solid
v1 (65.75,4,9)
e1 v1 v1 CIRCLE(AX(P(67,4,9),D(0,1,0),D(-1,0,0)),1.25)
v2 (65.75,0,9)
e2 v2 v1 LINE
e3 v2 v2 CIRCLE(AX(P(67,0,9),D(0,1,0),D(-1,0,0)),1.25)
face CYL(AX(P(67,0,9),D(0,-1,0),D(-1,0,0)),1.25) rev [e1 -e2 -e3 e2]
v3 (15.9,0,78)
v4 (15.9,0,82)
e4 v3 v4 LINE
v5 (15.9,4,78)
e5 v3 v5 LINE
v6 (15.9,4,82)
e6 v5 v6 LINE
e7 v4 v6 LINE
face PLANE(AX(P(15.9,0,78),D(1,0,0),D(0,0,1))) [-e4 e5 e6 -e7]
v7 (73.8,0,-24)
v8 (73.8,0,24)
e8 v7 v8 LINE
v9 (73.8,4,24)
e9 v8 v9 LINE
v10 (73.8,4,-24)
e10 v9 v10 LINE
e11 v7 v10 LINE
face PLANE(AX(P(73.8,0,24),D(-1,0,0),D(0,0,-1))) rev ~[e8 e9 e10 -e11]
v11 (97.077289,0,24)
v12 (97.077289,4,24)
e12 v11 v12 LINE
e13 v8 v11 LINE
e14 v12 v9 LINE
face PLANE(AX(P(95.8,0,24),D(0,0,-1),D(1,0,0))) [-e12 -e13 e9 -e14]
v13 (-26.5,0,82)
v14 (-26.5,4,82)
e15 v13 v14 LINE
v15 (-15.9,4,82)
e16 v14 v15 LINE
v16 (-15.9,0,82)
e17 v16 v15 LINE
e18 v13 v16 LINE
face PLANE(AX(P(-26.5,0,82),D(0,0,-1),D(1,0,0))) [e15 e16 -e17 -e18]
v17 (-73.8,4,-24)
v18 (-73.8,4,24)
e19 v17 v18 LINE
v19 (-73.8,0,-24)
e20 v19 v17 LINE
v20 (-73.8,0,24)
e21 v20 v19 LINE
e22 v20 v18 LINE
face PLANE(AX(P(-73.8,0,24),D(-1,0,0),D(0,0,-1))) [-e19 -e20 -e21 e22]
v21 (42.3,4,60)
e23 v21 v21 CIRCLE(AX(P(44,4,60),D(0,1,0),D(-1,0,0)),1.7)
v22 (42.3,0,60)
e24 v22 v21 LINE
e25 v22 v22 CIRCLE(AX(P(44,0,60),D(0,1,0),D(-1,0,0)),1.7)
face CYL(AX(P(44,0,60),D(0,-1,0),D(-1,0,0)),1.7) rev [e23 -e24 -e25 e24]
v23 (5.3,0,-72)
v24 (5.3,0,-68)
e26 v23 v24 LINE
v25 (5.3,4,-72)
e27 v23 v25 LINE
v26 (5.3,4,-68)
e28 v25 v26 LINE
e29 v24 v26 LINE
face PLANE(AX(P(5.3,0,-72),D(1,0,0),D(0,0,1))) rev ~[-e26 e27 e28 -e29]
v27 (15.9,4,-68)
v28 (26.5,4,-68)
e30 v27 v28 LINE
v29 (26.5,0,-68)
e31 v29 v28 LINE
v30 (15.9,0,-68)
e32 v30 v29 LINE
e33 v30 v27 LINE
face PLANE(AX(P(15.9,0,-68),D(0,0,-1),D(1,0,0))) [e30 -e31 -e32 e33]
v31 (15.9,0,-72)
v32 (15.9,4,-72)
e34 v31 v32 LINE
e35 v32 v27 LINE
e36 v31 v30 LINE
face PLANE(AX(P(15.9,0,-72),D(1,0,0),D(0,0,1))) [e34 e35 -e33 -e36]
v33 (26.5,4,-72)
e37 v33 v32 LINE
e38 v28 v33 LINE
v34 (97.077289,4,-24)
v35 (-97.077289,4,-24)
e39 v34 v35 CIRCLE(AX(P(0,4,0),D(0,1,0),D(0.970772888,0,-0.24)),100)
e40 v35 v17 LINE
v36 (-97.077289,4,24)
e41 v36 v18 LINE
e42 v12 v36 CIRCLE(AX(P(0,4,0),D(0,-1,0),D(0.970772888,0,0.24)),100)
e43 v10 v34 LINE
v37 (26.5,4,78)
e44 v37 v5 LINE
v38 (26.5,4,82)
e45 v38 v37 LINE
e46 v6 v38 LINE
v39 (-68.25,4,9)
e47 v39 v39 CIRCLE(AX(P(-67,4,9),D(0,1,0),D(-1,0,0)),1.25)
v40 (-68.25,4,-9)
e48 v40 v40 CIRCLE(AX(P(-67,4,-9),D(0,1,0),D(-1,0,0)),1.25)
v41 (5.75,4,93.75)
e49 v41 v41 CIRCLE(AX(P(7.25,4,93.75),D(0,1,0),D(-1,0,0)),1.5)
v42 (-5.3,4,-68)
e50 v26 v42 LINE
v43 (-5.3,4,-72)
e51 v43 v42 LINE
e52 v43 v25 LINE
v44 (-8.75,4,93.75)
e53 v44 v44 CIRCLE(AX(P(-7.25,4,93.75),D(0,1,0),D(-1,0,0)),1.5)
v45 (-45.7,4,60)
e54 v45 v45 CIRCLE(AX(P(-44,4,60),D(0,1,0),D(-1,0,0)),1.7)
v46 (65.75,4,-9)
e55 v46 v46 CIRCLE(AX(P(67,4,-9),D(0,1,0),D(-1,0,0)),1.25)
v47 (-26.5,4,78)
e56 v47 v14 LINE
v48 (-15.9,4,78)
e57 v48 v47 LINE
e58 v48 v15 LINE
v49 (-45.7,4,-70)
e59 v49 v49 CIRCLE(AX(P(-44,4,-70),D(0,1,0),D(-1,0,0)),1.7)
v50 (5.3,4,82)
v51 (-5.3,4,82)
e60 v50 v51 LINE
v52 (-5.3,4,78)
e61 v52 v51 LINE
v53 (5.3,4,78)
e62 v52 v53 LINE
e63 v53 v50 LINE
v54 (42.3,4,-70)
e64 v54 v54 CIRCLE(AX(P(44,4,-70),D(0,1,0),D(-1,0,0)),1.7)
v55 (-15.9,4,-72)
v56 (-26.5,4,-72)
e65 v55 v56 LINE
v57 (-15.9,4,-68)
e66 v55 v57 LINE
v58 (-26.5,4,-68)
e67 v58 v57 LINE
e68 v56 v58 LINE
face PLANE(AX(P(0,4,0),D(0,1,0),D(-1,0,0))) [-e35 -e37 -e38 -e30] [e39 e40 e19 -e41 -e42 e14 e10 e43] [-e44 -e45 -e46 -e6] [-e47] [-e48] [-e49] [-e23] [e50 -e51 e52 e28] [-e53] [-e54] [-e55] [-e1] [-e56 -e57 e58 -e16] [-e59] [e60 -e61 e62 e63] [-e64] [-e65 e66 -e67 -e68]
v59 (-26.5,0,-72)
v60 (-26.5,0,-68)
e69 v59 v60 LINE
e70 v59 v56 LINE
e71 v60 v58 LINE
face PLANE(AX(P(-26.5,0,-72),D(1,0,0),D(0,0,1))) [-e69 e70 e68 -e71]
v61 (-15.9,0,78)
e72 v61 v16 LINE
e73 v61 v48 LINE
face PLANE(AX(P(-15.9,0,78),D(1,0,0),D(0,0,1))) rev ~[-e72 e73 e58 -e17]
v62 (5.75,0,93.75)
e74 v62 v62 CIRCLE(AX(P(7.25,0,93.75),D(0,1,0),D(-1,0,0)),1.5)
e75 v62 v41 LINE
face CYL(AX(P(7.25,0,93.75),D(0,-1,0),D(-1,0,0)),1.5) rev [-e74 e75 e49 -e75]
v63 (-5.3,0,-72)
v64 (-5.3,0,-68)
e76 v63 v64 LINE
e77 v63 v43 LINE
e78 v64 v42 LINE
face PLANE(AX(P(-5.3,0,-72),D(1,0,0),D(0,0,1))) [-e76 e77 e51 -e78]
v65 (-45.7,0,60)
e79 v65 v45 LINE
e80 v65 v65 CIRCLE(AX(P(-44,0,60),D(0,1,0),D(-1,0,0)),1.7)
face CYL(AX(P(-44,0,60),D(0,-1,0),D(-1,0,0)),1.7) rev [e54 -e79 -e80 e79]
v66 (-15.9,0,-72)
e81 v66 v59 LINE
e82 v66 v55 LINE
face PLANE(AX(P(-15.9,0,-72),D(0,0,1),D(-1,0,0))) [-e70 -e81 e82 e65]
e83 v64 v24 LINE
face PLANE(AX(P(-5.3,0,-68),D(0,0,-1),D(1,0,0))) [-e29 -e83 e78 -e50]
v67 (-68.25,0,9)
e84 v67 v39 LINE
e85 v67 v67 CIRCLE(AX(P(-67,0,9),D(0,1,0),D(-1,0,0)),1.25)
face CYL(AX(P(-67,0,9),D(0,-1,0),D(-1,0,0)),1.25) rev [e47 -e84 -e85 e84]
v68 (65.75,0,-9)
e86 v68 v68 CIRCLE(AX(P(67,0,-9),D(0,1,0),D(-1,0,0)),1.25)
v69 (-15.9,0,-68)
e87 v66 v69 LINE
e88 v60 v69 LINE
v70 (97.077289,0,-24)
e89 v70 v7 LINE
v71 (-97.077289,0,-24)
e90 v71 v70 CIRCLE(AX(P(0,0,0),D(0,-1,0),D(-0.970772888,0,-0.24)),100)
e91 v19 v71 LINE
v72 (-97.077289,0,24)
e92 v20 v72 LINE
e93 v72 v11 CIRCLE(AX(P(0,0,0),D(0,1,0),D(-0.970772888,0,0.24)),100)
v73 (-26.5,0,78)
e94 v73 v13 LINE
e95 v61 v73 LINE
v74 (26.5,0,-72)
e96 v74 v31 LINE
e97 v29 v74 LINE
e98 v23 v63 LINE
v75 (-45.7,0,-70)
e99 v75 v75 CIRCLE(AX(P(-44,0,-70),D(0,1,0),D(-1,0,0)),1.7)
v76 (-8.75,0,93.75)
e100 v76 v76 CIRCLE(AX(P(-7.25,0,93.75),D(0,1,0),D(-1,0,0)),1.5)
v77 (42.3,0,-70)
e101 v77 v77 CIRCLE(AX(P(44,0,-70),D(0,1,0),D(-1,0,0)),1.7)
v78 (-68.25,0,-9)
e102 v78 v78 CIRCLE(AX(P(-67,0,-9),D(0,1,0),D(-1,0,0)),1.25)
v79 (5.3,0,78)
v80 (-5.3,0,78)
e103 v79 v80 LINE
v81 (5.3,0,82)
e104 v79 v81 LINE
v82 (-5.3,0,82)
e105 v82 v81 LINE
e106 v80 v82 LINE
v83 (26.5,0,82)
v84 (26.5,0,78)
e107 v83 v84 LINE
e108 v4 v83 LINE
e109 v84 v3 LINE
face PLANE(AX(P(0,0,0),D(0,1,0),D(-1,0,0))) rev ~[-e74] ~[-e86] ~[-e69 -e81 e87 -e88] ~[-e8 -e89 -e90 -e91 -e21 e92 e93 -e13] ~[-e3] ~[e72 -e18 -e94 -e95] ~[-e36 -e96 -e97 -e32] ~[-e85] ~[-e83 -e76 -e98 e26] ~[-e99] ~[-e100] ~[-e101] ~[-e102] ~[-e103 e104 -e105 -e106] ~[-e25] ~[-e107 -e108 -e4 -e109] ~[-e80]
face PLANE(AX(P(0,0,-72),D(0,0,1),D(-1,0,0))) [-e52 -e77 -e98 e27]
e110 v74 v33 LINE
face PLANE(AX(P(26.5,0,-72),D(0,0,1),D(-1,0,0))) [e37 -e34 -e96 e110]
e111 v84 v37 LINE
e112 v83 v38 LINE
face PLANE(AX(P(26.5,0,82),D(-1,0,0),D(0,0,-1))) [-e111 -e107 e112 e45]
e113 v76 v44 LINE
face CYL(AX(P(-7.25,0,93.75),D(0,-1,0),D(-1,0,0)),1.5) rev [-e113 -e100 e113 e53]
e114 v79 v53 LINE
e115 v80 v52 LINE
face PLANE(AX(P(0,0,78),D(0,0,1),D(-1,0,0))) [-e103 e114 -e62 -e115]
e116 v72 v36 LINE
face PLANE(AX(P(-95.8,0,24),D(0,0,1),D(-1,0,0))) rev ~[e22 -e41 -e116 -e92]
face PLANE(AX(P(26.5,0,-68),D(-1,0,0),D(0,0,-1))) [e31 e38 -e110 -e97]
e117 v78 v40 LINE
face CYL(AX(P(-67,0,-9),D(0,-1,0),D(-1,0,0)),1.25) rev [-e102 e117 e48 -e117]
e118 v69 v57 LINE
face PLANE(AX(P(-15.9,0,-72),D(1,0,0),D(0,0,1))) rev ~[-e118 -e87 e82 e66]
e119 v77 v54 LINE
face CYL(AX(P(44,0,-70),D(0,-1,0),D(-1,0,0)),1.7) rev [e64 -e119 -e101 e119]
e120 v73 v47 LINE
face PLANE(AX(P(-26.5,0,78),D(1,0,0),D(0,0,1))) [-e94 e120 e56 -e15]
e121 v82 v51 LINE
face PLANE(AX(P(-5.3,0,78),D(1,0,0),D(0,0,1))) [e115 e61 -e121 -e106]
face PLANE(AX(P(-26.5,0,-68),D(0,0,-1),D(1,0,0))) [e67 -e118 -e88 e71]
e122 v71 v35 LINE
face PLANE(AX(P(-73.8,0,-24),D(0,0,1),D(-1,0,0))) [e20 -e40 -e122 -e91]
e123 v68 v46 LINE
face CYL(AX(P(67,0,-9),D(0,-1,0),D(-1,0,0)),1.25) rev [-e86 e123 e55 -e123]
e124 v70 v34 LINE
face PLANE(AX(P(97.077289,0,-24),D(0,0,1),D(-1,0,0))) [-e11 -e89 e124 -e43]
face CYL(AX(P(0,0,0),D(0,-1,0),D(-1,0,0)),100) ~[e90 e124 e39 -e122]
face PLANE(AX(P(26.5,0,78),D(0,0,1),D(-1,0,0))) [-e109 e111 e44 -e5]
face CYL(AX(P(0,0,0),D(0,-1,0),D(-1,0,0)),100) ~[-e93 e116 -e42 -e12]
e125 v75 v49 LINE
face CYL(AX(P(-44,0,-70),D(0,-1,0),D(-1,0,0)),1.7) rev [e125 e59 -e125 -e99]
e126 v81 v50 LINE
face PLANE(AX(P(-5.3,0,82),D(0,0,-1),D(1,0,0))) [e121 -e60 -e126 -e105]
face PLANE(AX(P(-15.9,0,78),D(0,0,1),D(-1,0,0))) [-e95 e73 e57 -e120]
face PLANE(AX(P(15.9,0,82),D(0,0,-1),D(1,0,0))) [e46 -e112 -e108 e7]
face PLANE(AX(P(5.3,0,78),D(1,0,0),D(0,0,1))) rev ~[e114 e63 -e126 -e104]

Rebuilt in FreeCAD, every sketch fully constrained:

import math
import FreeCAD as App
import Part
import Sketcher

V = App.Vector
Q = App.Units.Quantity

doc = App.newDocument("Part")
params = doc.addObject("Spreadsheet::Sheet", "Params")
for row, (alias, value) in enumerate([
    ("sketch1_diameter", "3 mm"),
    ("sketch1_radius", "100 mm"),
    ("sketch1_diameter2", "2.5 mm"),
    ("sketch1_diameter3", "3.4 mm"),
    ("sketch1_height", "48 mm"),
    ("pad1_length", "4 mm"),
], start=1):
    params.set(f"A{row}", alias)
    params.set(f"B{row}", "=" + value)
    params.setAlias(f"B{row}", alias)

body = doc.addObject("PartDesign::Body", "Body")

sketch1 = doc.addObject("Sketcher::SketchObject", "Sketch")
body.addObject(sketch1)
sketch1.AttachmentSupport = (doc.XZ_Plane, [""])
sketch1.MapMode = "FlatFace"
sketch1.addGeometry(Part.ArcOfCircle(Part.Circle(V(0, 0, 0), V(0, 0, 1), 100), math.radians(14), math.radians(166)), False)
sketch1.addGeometry(Part.LineSegment(V(97.1, 24, 0), V(73.8, 24, 0)), False)
sketch1.addGeometry(Part.LineSegment(V(73.8, 24, 0), V(73.8, -24, 0)), False)
sketch1.addGeometry(Part.LineSegment(V(73.8, -24, 0), V(97.1, -24, 0)), False)
sketch1.addGeometry(Part.ArcOfCircle(Part.Circle(V(0, 0, 0), V(0, 0, 1), 100), math.radians(-166), math.radians(-14)), False)
sketch1.addGeometry(Part.LineSegment(V(-97.1, -24, 0), V(-73.8, -24, 0)), False)
sketch1.addGeometry(Part.LineSegment(V(-73.8, -24, 0), V(-73.8, 24, 0)), False)
sketch1.addGeometry(Part.LineSegment(V(-73.8, 24, 0), V(-97.1, 24, 0)), False)
sketch1.addGeometry(Part.LineSegment(V(-5.3, 78, 0), V(5.3, 78, 0)), False)
sketch1.addGeometry(Part.LineSegment(V(5.3, 78, 0), V(5.3, 82, 0)), False)
sketch1.addGeometry(Part.LineSegment(V(5.3, 82, 0), V(-5.3, 82, 0)), False)
sketch1.addGeometry(Part.LineSegment(V(-5.3, 82, 0), V(-5.3, 78, 0)), False)
sketch1.addGeometry(Part.LineSegment(V(-26.5, 78, 0), V(-15.9, 78, 0)), False)
sketch1.addGeometry(Part.LineSegment(V(-15.9, 78, 0), V(-15.9, 82, 0)), False)
sketch1.addGeometry(Part.LineSegment(V(-15.9, 82, 0), V(-26.5, 82, 0)), False)
sketch1.addGeometry(Part.LineSegment(V(-26.5, 82, 0), V(-26.5, 78, 0)), False)
sketch1.addGeometry(Part.Circle(V(-67, 9, 0), V(0, 0, 1), 1.2), False)
sketch1.addGeometry(Part.Circle(V(-44, 60, 0), V(0, 0, 1), 1.7), False)
sketch1.addGeometry(Part.Circle(V(-7.2, 93.8, 0), V(0, 0, 1), 1.5), False)
sketch1.addGeometry(Part.LineSegment(V(-5.3, -72, 0), V(5.3, -72, 0)), False)
sketch1.addGeometry(Part.LineSegment(V(5.3, -72, 0), V(5.3, -68, 0)), False)
sketch1.addGeometry(Part.LineSegment(V(5.3, -68, 0), V(-5.3, -68, 0)), False)
sketch1.addGeometry(Part.LineSegment(V(-5.3, -68, 0), V(-5.3, -72, 0)), False)
sketch1.addGeometry(Part.LineSegment(V(-26.5, -72, 0), V(-15.9, -72, 0)), False)
sketch1.addGeometry(Part.LineSegment(V(-15.9, -72, 0), V(-15.9, -68, 0)), False)
sketch1.addGeometry(Part.LineSegment(V(-15.9, -68, 0), V(-26.5, -68, 0)), False)
sketch1.addGeometry(Part.LineSegment(V(-26.5, -68, 0), V(-26.5, -72, 0)), False)
sketch1.addGeometry(Part.Circle(V(-67, -9, 0), V(0, 0, 1), 1.2), False)
sketch1.addGeometry(Part.Circle(V(-44, -70, 0), V(0, 0, 1), 1.7), False)
sketch1.addGeometry(Part.Circle(V(44, 60, 0), V(0, 0, 1), 1.7), False)
sketch1.addGeometry(Part.LineSegment(V(26.5, 82, 0), V(15.9, 82, 0)), False)
sketch1.addGeometry(Part.LineSegment(V(15.9, 82, 0), V(15.9, 78, 0)), False)
sketch1.addGeometry(Part.LineSegment(V(15.9, 78, 0), V(26.5, 78, 0)), False)
sketch1.addGeometry(Part.LineSegment(V(26.5, 78, 0), V(26.5, 82, 0)), False)
sketch1.addGeometry(Part.Circle(V(7.2, 93.8, 0), V(0, 0, 1), 1.5), False)
sketch1.addGeometry(Part.Circle(V(67, 9, 0), V(0, 0, 1), 1.2), False)
sketch1.addGeometry(Part.Circle(V(67, -9, 0), V(0, 0, 1), 1.2), False)
sketch1.addGeometry(Part.Circle(V(44, -70, 0), V(0, 0, 1), 1.7), False)
sketch1.addGeometry(Part.LineSegment(V(26.5, -68, 0), V(15.9, -68, 0)), False)
sketch1.addGeometry(Part.LineSegment(V(15.9, -68, 0), V(15.9, -72, 0)), False)
sketch1.addGeometry(Part.LineSegment(V(15.9, -72, 0), V(26.5, -72, 0)), False)
sketch1.addGeometry(Part.LineSegment(V(26.5, -72, 0), V(26.5, -68, 0)), False)
sketch1.addConstraint(Sketcher.Constraint("Coincident", 0, 1, 1, 1))
sketch1.addConstraint(Sketcher.Constraint("Coincident", 1, 2, 2, 1))
sketch1.addConstraint(Sketcher.Constraint("Coincident", 2, 2, 3, 1))
sketch1.addConstraint(Sketcher.Constraint("Coincident", 3, 2, 4, 2))
sketch1.addConstraint(Sketcher.Constraint("Coincident", 4, 1, 5, 1))
sketch1.addConstraint(Sketcher.Constraint("Coincident", 5, 2, 6, 1))
sketch1.addConstraint(Sketcher.Constraint("Coincident", 6, 2, 7, 1))
sketch1.addConstraint(Sketcher.Constraint("Coincident", 7, 2, 0, 2))
sketch1.addConstraint(Sketcher.Constraint("Coincident", 8, 2, 9, 1))
sketch1.addConstraint(Sketcher.Constraint("Coincident", 9, 2, 10, 1))
sketch1.addConstraint(Sketcher.Constraint("Coincident", 10, 2, 11, 1))
sketch1.addConstraint(Sketcher.Constraint("Coincident", 11, 2, 8, 1))
sketch1.addConstraint(Sketcher.Constraint("Coincident", 12, 2, 13, 1))
sketch1.addConstraint(Sketcher.Constraint("Coincident", 13, 2, 14, 1))
sketch1.addConstraint(Sketcher.Constraint("Coincident", 14, 2, 15, 1))
sketch1.addConstraint(Sketcher.Constraint("Coincident", 15, 2, 12, 1))
sketch1.addConstraint(Sketcher.Constraint("Coincident", 19, 2, 20, 1))
sketch1.addConstraint(Sketcher.Constraint("Coincident", 20, 2, 21, 1))
sketch1.addConstraint(Sketcher.Constraint("Coincident", 21, 2, 22, 1))
sketch1.addConstraint(Sketcher.Constraint("Coincident", 22, 2, 19, 1))
sketch1.addConstraint(Sketcher.Constraint("Coincident", 23, 2, 24, 1))
sketch1.addConstraint(Sketcher.Constraint("Coincident", 24, 2, 25, 1))
sketch1.addConstraint(Sketcher.Constraint("Coincident", 25, 2, 26, 1))
sketch1.addConstraint(Sketcher.Constraint("Coincident", 26, 2, 23, 1))
sketch1.addConstraint(Sketcher.Constraint("Coincident", 30, 2, 31, 1))
sketch1.addConstraint(Sketcher.Constraint("Coincident", 31, 2, 32, 1))
sketch1.addConstraint(Sketcher.Constraint("Coincident", 32, 2, 33, 1))
sketch1.addConstraint(Sketcher.Constraint("Coincident", 33, 2, 30, 1))
sketch1.addConstraint(Sketcher.Constraint("Coincident", 38, 2, 39, 1))
sketch1.addConstraint(Sketcher.Constraint("Coincident", 39, 2, 40, 1))
sketch1.addConstraint(Sketcher.Constraint("Coincident", 40, 2, 41, 1))
sketch1.addConstraint(Sketcher.Constraint("Coincident", 41, 2, 38, 1))
sketch1.addConstraint(Sketcher.Constraint("Horizontal", 1))
sketch1.addConstraint(Sketcher.Constraint("Vertical", 2))
sketch1.addConstraint(Sketcher.Constraint("Horizontal", 3))
sketch1.addConstraint(Sketcher.Constraint("Horizontal", 5))
sketch1.addConstraint(Sketcher.Constraint("Vertical", 6))
sketch1.addConstraint(Sketcher.Constraint("Horizontal", 7))
sketch1.addConstraint(Sketcher.Constraint("Horizontal", 8))
sketch1.addConstraint(Sketcher.Constraint("Vertical", 9))
sketch1.addConstraint(Sketcher.Constraint("Horizontal", 10))
sketch1.addConstraint(Sketcher.Constraint("Vertical", 11))
sketch1.addConstraint(Sketcher.Constraint("Horizontal", 12))
sketch1.addConstraint(Sketcher.Constraint("Vertical", 13))
sketch1.addConstraint(Sketcher.Constraint("Horizontal", 14))
sketch1.addConstraint(Sketcher.Constraint("Vertical", 15))
sketch1.addConstraint(Sketcher.Constraint("Horizontal", 19))
sketch1.addConstraint(Sketcher.Constraint("Vertical", 20))
sketch1.addConstraint(Sketcher.Constraint("Horizontal", 21))
sketch1.addConstraint(Sketcher.Constraint("Vertical", 22))
sketch1.addConstraint(Sketcher.Constraint("Horizontal", 23))
sketch1.addConstraint(Sketcher.Constraint("Vertical", 24))
sketch1.addConstraint(Sketcher.Constraint("Horizontal", 25))
sketch1.addConstraint(Sketcher.Constraint("Vertical", 26))
sketch1.addConstraint(Sketcher.Constraint("Horizontal", 30))
sketch1.addConstraint(Sketcher.Constraint("Vertical", 31))
sketch1.addConstraint(Sketcher.Constraint("Horizontal", 32))
sketch1.addConstraint(Sketcher.Constraint("Vertical", 33))
sketch1.addConstraint(Sketcher.Constraint("Horizontal", 38))
sketch1.addConstraint(Sketcher.Constraint("Vertical", 39))
sketch1.addConstraint(Sketcher.Constraint("Horizontal", 40))
sketch1.addConstraint(Sketcher.Constraint("Vertical", 41))
sketch1.addConstraint(Sketcher.Constraint("Coincident", 0, 3, -1, 1))
sketch1.addConstraint(Sketcher.Constraint("Coincident", 4, 3, -1, 1))
sketch1.addConstraint(Sketcher.Constraint("Equal", 0, 4))
sketch1.addConstraint(Sketcher.Constraint("Equal", 16, 27))
sketch1.addConstraint(Sketcher.Constraint("Equal", 17, 28))
sketch1.addConstraint(Sketcher.Constraint("Equal", 28, 29))
sketch1.addConstraint(Sketcher.Constraint("Equal", 18, 34))
sketch1.addConstraint(Sketcher.Constraint("Equal", 27, 35))
sketch1.addConstraint(Sketcher.Constraint("Equal", 35, 36))
sketch1.addConstraint(Sketcher.Constraint("Equal", 29, 37))
sketch1.addConstraint(Sketcher.Constraint("Symmetric", 27, 3, 35, 3, -1, 1))
sketch1.addConstraint(Sketcher.Constraint("Symmetric", 16, 3, 36, 3, -1, 1))
sketch1.addConstraint(Sketcher.Constraint("Symmetric", 1, 2, 5, 2, -1, 1))
sketch1.addConstraint(Sketcher.Constraint("Symmetric", 17, 3, 29, 3, -2))
sketch1.addConstraint(Sketcher.Constraint("Symmetric", 18, 3, 34, 3, -2))
sketch1.addConstraint(Sketcher.Constraint("Symmetric", 16, 3, 35, 3, -2))
sketch1.addConstraint(Sketcher.Constraint("Symmetric", 28, 3, 37, 3, -2))
sketch1.addConstraint(Sketcher.Constraint("Symmetric", 13, 2, 30, 2, -2))
sketch1.addConstraint(Sketcher.Constraint("Symmetric", 15, 2, 32, 2, -2))
sketch1.addConstraint(Sketcher.Constraint("Symmetric", 24, 2, 38, 2, -2))
sketch1.addConstraint(Sketcher.Constraint("Symmetric", 26, 2, 40, 2, -2))
sketch1.addConstraint(Sketcher.Constraint("Horizontal", 3, 2, 4, 1))
sketch1.addConstraint(Sketcher.Constraint("Horizontal", 1, 2, 6, 2))
sketch1.addConstraint(Sketcher.Constraint("Horizontal", 11, 2, 12, 2))
sketch1.addConstraint(Sketcher.Constraint("Horizontal", 10, 2, 13, 2))
sketch1.addConstraint(Sketcher.Constraint("Horizontal", 22, 2, 23, 2))
sketch1.addConstraint(Sketcher.Constraint("Horizontal", 21, 2, 24, 2))
sketch1.addConstraint(Sketcher.Constraint("Vertical", 17, 3, 28, 3))
sketch1.addConstraint(Sketcher.Constraint("Vertical", 9, 2, 19, 2))
sketch1.addConstraint(Sketcher.Constraint("Vertical", 11, 2, 21, 2))
sketch1.addConstraint(Sketcher.Constraint("Vertical", 13, 2, 23, 2))
sketch1.addConstraint(Sketcher.Constraint("Vertical", 15, 2, 25, 2))
sketch1.addConstraint(Sketcher.Constraint("Equal", 10, 12))
sketch1.addConstraint(Sketcher.Constraint("Equal", 15, 20))
sketch1.addConstraint(Sketcher.Constraint("Diameter", 18, Q("3 mm")))
sketch1.addConstraint(Sketcher.Constraint("Radius", 0, Q("100 mm")))
sketch1.addConstraint(Sketcher.Constraint("Diameter", 16, Q("2.5 mm")))
sketch1.addConstraint(Sketcher.Constraint("Diameter", 17, Q("3.4 mm")))
sketch1.addConstraint(Sketcher.Constraint("DistanceY", 2, 2, 2, 1, Q("48 mm")))
sketch1.addConstraint(Sketcher.Constraint("DistanceY", 9, 1, 9, 2, Q("4 mm")))
sketch1.addConstraint(Sketcher.Constraint("DistanceX", 8, 1, 8, 2, Q("10.6 mm")))
sketch1.addConstraint(Sketcher.Constraint("DistanceX", 16, 3, -1, 1, Q("67 mm")))
sketch1.addConstraint(Sketcher.Constraint("DistanceY", -1, 1, 16, 3, Q("9 mm")))
sketch1.addConstraint(Sketcher.Constraint("DistanceX", 17, 3, -1, 1, Q("44 mm")))
sketch1.addConstraint(Sketcher.Constraint("DistanceY", -1, 1, 17, 3, Q("60 mm")))
sketch1.addConstraint(Sketcher.Constraint("DistanceY", -1, 1, 8, 2, Q("78 mm")))
sketch1.addConstraint(Sketcher.Constraint("DistanceY", 28, 3, 17, 3, Q("130 mm")))
sketch1.addConstraint(Sketcher.Constraint("DistanceY", 19, 2, 2, 2, Q("48 mm")))
sketch1.addConstraint(Sketcher.Constraint("DistanceX", 14, 2, -1, 1, Q("26.5 mm")))
sketch1.addConstraint(Sketcher.Constraint("DistanceX", 12, 2, 11, 2, Q("10.6 mm")))
sketch1.addConstraint(Sketcher.Constraint("DistanceX", 18, 3, -1, 1, Q("7.25 mm")))
sketch1.addConstraint(Sketcher.Constraint("DistanceY", -1, 1, 18, 3, Q("93.75 mm")))
sketch1.addConstraint(Sketcher.Constraint("DistanceX", -1, 1, 1, 2, Q("73.8 mm")))
sketch1.setExpression("Constraints[96]", "Params.sketch1_diameter")
sketch1.setExpression("Constraints[97]", "Params.sketch1_radius")
sketch1.setExpression("Constraints[98]", "Params.sketch1_diameter2")
sketch1.setExpression("Constraints[99]", "Params.sketch1_diameter3")
sketch1.setExpression("Constraints[100]", "Params.sketch1_height")
pad1 = doc.addObject("PartDesign::Pad", "Pad")
body.addObject(pad1)
pad1.Profile = sketch1
pad1.setExpression("Length", "Params.pad1_length")
pad1.Reversed = True

doc.recompute()
